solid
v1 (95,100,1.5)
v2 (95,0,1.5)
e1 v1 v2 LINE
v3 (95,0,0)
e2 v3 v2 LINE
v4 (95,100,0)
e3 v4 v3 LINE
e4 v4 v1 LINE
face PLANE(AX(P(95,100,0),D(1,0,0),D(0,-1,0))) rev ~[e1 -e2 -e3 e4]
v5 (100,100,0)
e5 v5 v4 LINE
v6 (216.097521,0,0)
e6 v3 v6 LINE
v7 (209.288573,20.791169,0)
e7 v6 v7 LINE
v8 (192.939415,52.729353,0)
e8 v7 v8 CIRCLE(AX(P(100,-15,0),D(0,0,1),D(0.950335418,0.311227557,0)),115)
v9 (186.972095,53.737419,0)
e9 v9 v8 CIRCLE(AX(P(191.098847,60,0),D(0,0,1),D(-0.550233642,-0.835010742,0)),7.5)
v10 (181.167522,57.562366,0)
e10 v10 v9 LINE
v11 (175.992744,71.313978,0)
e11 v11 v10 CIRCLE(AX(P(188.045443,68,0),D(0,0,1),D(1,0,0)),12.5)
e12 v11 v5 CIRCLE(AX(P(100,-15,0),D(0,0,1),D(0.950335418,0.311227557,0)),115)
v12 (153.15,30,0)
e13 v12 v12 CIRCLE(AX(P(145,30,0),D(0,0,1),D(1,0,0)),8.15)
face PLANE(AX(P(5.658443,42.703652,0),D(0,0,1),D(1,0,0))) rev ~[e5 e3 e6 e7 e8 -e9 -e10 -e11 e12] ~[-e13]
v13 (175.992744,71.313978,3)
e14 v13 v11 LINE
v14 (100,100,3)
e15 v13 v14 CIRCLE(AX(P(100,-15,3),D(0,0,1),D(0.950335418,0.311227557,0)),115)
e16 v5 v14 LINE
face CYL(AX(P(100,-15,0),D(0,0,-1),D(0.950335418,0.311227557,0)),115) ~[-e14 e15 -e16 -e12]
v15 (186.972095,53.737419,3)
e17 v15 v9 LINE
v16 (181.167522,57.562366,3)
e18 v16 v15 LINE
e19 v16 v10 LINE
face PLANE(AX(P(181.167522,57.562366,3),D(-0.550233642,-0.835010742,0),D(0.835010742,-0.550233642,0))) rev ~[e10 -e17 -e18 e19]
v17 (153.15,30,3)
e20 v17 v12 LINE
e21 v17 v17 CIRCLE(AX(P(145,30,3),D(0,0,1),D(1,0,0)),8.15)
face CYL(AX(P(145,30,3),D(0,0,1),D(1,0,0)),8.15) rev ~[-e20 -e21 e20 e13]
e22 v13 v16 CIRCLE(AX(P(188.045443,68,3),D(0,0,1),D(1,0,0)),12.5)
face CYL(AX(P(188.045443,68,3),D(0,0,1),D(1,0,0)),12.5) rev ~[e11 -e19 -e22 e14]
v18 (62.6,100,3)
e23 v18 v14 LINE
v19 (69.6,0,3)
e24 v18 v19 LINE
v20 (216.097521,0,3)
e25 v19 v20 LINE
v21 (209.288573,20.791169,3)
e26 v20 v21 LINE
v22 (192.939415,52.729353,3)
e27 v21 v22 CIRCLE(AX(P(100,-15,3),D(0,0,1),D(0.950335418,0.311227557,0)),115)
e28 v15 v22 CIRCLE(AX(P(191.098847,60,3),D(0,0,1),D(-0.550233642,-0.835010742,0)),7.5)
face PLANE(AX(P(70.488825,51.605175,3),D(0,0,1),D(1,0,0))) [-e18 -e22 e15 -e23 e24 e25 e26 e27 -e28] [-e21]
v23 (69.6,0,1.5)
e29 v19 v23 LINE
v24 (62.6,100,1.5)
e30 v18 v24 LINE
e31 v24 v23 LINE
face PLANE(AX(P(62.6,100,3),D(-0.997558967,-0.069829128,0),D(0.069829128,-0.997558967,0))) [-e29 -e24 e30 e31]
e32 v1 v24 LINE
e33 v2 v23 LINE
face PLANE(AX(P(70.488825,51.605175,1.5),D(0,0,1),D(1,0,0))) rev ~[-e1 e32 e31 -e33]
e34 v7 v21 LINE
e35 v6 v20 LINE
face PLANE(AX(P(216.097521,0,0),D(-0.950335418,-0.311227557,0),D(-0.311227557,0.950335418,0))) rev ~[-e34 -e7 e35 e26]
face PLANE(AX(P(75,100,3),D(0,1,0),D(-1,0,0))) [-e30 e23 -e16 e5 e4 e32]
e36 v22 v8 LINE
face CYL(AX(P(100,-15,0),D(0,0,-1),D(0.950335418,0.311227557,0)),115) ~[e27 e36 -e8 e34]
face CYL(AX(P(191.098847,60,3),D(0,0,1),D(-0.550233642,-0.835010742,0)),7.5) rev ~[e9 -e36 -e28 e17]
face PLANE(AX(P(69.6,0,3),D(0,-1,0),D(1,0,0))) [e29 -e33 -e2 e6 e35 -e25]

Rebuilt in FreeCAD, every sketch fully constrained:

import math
import FreeCAD as App
import Part
import Sketcher
from FreeCAD import Vector
Q = App.Units.Quantity


def edges_at(feature, points):
    """Names of the edges that pass closest to the given points."""
    edges = feature.Shape.Edges
    near = lambda p: min(range(len(edges)), key=lambda i: edges[i].distToShape(Part.Vertex(*p))[0])
    return sorted({f"Edge{near(p) + 1}" for p in points})


def add_polygon(sketch, points):
    """Adds a closed chain of lines whose ends are joined by coincident constraints."""
    first, n = sketch.GeometryCount, len(points)
    for a, b in zip(points, points[1:] + points[:1]):
        sketch.addGeometry(Part.LineSegment(App.Vector(*a, 0), App.Vector(*b, 0)), False)
    for i in range(n):
        sketch.addConstraint(Sketcher.Constraint("Coincident", first + i, 2, first + (i + 1) % n, 1))

doc = App.newDocument("Part")
body = doc.addObject("PartDesign::Body", "Body")

sketch1 = body.newObject("Sketcher::SketchObject", "Sketch")
sketch1.AttachmentSupport = (doc.getObject("XY_Plane"), [""])
sketch1.MapMode = "FlatFace"
sketch1.addGeometry([
    Part.LineSegment(Vector(-198, 21, 0), Vector(-202, 0, 0)),
    Part.LineSegment(Vector(-202, 0, 0), Vector(216, 0, 0)),
    Part.LineSegment(Vector(216, 0, 0), Vector(209, 21, 0)),
    Part.ArcOfCircle(Part.Circle(Vector(100, -15, 0), Vector(0, 0, 1), 115), math.radians(18), math.radians(90)),
    Part.LineSegment(Vector(100, 100, 0), Vector(-100, 100, 0)),
    Part.ArcOfCircle(Part.Circle(Vector(-100, 0, 0), Vector(0, 0, 1), 100), math.radians(90), math.radians(168)),
], False)
sketch1.addConstraint([
    Sketcher.Constraint("Coincident", 0, 2, 1, 1),
    Sketcher.Constraint("Coincident", 1, 2, 2, 1),
    Sketcher.Constraint("Tangent", 2, 2, 3, 1),
    Sketcher.Constraint("Tangent", 3, 2, 4, 1),
    Sketcher.Constraint("Tangent", 4, 2, 5, 1),
    Sketcher.Constraint("Tangent", 5, 2, 0, 1),
    Sketcher.Constraint("Horizontal", 1),
    Sketcher.Constraint("Horizontal", 4),
    Sketcher.Constraint("PointOnObject", 5, 3, -1),
    Sketcher.Constraint("PointOnObject", 0, 2, -1),
    Sketcher.Constraint("Horizontal", 2, 2, 5, 2),
    Sketcher.Constraint("Radius", 3, 115.0),
    Sketcher.Constraint("Radius", 5, 100.0),
    Sketcher.Constraint("DistanceX", 4, 2, 4, 1, 200.0),
    Sketcher.Constraint("Angle", 0, Q("-102 deg")),
    Sketcher.Constraint("DistanceX", -1, 1, 3, 3, 100.0),
])
pad1 = body.newObject("PartDesign::Pad", "Pad")
pad1.Profile = sketch1
pad1.Length = 3

sketch2 = body.newObject("Sketcher::SketchObject", "Sketch001")
sketch2.AttachmentSupport = (doc.getObject("XY_Plane"), [""])
sketch2.MapMode = "FlatFace"
sketch2.AttachmentOffset = App.Placement(Vector(0, 0, 3), App.Rotation())
sketch2.addGeometry([
    Part.ArcOfCircle(Part.Circle(Vector(0, 12.5, 0), Vector(0, 0, 1), 12.6), math.radians(28), math.radians(152)),
    Part.LineSegment(Vector(-11.1, 18.5, 0), Vector(-21.8, 0, 0)),
    Part.LineSegment(Vector(-21.8, 0, 0), Vector(-1.6, 0, 0)),
    Part.ArcOfCircle(Part.Circle(Vector(0, 12.5, 0), Vector(0, 0, 1), 12.6), math.radians(-97.22), math.radians(-82.78)),
    Part.LineSegment(Vector(1.6, 0, 0), Vector(21.8, 0, 0)),
    Part.LineSegment(Vector(21.8, 0, 0), Vector(11.1, 18.5, 0)),
], False)
sketch2.addConstraint([
    Sketcher.Constraint("Coincident", 0, 2, 1, 1),
    Sketcher.Constraint("Coincident", 1, 2, 2, 1),
    Sketcher.Constraint("Coincident", 2, 2, 3, 1),
    Sketcher.Constraint("Coincident", 3, 2, 4, 1),
    Sketcher.Constraint("Coincident", 4, 2, 5, 1),
    Sketcher.Constraint("Coincident", 5, 2, 0, 1),
    Sketcher.Constraint("Horizontal", 2),
    Sketcher.Constraint("Horizontal", 4),
    Sketcher.Constraint("Coincident", 3, 3, 0, 3),
    Sketcher.Constraint("Equal", 0, 3),
    Sketcher.Constraint("Symmetric", 2, 2, 3, 2, -1, 1),
    Sketcher.Constraint("Symmetric", 1, 2, 4, 2, -2),
    Sketcher.Constraint("Horizontal", 0, 2, 5, 2),
    Sketcher.Constraint("Radius", 0, 12.6),
    Sketcher.Constraint("Angle", 1, Q("-120 deg")),
    Sketcher.Constraint("DistanceY", -1, 1, 0, 3, 12.5),
    Sketcher.Constraint("Distance", 1, 21.318592),
])
pocket1 = body.newObject("PartDesign::Pocket", "Pocket")
pocket1.Profile = sketch2
pocket1.Length = 25
doc.recompute()

fillet = body.newObject("PartDesign::Fillet", "Fillet")
fillet.Base = (pocket1, edges_at(pocket1, [(-21.759, 0, 1.5), (21.759, 0, 1.5)]))
fillet.Radius = 5

sketch3 = body.newObject("Sketcher::SketchObject", "Sketch002")
sketch3.AttachmentSupport = (doc.getObject("XY_Plane"), [""])
sketch3.MapMode = "FlatFace"
sketch3.AttachmentOffset = App.Placement(Vector(0, 0, 3), App.Rotation())
add_polygon(sketch3, [(-145, 38.9), (-152.8, 34.5), (-152.8, 25.5), (-145, 21.1), (-137.2, 25.5), (-137.2, 34.5)])
sketch3.addGeometry(Part.Circle(Vector(-115, 30, 0), Vector(0, 0, 1), 11.2), False)
sketch3.addGeometry(Part.Circle(Vector(-115, 60, 0), Vector(0, 0, 1), 2.6), False)
sketch3.addGeometry(Part.Circle(Vector(-145, 60, 0), Vector(0, 0, 1), 2.6), False)
sketch3.addConstraint([
    Sketcher.Constraint("Vertical", 1),
    Sketcher.Constraint("Vertical", 4),
    Sketcher.Constraint("Equal", 7, 8),
    Sketcher.Constraint("Parallel", 0, 3),
    Sketcher.Constraint("Parallel", 2, 5),
    Sketcher.Constraint("Horizontal", 7, 3, 8, 3),
    Sketcher.Constraint("Horizontal", 1, 2, 3, 2),
    Sketcher.Constraint("Horizontal", 0, 2, 4, 2),
    Sketcher.Constraint("Vertical", 6, 3, 7, 3),
    Sketcher.Constraint("Vertical", 8, 3, 2, 2),
    Sketcher.Constraint("Vertical", 2, 2, 5, 2),
    Sketcher.Constraint("Diameter", 6, 22.3),
    Sketcher.Constraint("Diameter", 7, 5.3),
    Sketcher.Constraint("Angle", 0, Q("-150 deg")),
    Sketcher.Constraint("DistanceX", 6, 3, -1, 1, 115.0),
    Sketcher.Constraint("DistanceY", -1, 1, 6, 3, 30.0),
    Sketcher.Constraint("DistanceY", -1, 1, 7, 3, 60.0),
    Sketcher.Constraint("DistanceX", 8, 3, -1, 1, 145.0),
    Sketcher.Constraint("DistanceX", 1, 2, 3, 2, 15.5),
    Sketcher.Constraint("DistanceY", 1, 2, 1, 1, 8.948929),
    Sketcher.Constraint("DistanceY", -1, 1, 2, 2, 21.051071),
])
pocket2 = body.newObject("PartDesign::Pocket", "Pocket001")
pocket2.Profile = sketch3
pocket2.Length = 25

sketch4 = body.newObject("Sketcher::SketchObject", "Sketch003")
sketch4.AttachmentSupport = (doc.getObject("XY_Plane"), [""])
sketch4.MapMode = "FlatFace"
sketch4.AttachmentOffset = App.Placement(Vector(0, 0, 3), App.Rotation())
add_polygon(sketch4, [(-39, 85.5), (-39, 30), (39, 30), (39, 85.5)])
sketch4.addGeometry(Part.Circle(Vector(-42.6, 28.2, 0), Vector(0, 0, 1), 2), False)
sketch4.addGeometry(Part.Circle(Vector(-42.6, 87.2, 0), Vector(0, 0, 1), 2), False)
sketch4.addGeometry(Part.Circle(Vector(42.4, 87.2, 0), Vector(0, 0, 1), 2), False)
sketch4.addGeometry(Part.Circle(Vector(42.4, 28.2, 0), Vector(0, 0, 1), 2), False)
sketch4.addConstraint([
    Sketcher.Constraint("Vertical", 0),
    Sketcher.Constraint("Horizontal", 1),
    Sketcher.Constraint("Vertical", 2),
    Sketcher.Constraint("Horizontal", 3),
    Sketcher.Constraint("Equal", 4, 5),
    Sketcher.Constraint("Equal", 5, 6),
    Sketcher.Constraint("Equal", 6, 7),
    Sketcher.Constraint("Horizontal", 5, 3, 6, 3),
    Sketcher.Constraint("Horizontal", 4, 3, 7, 3),
    Sketcher.Constraint("Vertical", 4, 3, 5, 3),
    Sketcher.Constraint("Vertical", 6, 3, 7, 3),
    Sketcher.Constraint("Diameter", 4, 4.0),
    Sketcher.Constraint("DistanceX", 1, 1, 1, 2, 78.0),
    Sketcher.Constraint("DistanceY", 0, 2, 0, 1, 55.5),
    Sketcher.Constraint("DistanceX", 0, 2, -1, 1, 39.0),
    Sketcher.Constraint("DistanceY", -1, 1, 0, 2, 30.0),
    Sketcher.Constraint("DistanceY", 4, 3, 5, 3, 59.0),
    Sketcher.Constraint("DistanceX", 5, 3, 6, 3, 85.0),
    Sketcher.Constraint("DistanceY", -1, 1, 4, 3, 28.25),
    Sketcher.Constraint("DistanceX", 4, 3, -1, 1, 42.631317),
])
pocket3 = body.newObject("PartDesign::Pocket", "Pocket002")
pocket3.Profile = sketch4
pocket3.Length = 25

sketch5 = body.newObject("Sketcher::SketchObject", "Sketch004")
sketch5.AttachmentSupport = (doc.getObject("XY_Plane"), [""])
sketch5.MapMode = "FlatFace"
sketch5.AttachmentOffset = App.Placement(Vector(0, 0, 3), App.Rotation())
sketch5.addGeometry(Part.Circle(Vector(145, 30, 0), Vector(0, 0, 1), 8), False)
sketch5.addConstraint([
    Sketcher.Constraint("Diameter", 0, 16.3),
    Sketcher.Constraint("DistanceX", -1, 1, 0, 3, 145.0),
    Sketcher.Constraint("DistanceY", -1, 1, 0, 3, 30.0),
])
pocket4 = body.newObject("PartDesign::Pocket", "Pocket003")
pocket4.Profile = sketch5
pocket4.Length = 25

sketch6 = body.newObject("Sketcher::SketchObject", "Sketch005")
sketch6.AttachmentSupport = (doc.getObject("XY_Plane"), [""])
sketch6.MapMode = "FlatFace"
sketch6.AttachmentOffset = App.Placement(Vector(0, 0, 3), App.Rotation())
add_polygon(sketch6, [(-233, 117), (-233, 0), (75, 0), (75, 117)])
sketch6.addConstraint([
    Sketcher.Constraint("Vertical", 0),
    Sketcher.Constraint("Horizontal", 1),
    Sketcher.Constraint("Vertical", 2),
    Sketcher.Constraint("Horizontal", 3),
    Sketcher.Constraint("PointOnObject", 0, 2, -1),
    Sketcher.Constraint("DistanceX", -1, 1, 1, 2, 75.0),
    Sketcher.Constraint("DistanceX", 1, 1, 1, 2, 307.753576),
    Sketcher.Constraint("DistanceY", 0, 2, 0, 1, 117.255145),
])
pocket5 = body.newObject("PartDesign::Pocket", "Pocket004")
pocket5.Profile = sketch6
pocket5.Length = 25

sketch7 = body.newObject("Sketcher::SketchObject", "Sketch006")
sketch7.AttachmentSupport = (doc.getObject("XY_Plane"), [""])
sketch7.MapMode = "FlatFace"
add_polygon(sketch7, [(75, 0), (75, 100), (95, 100), (95, 0)])
sketch7.addConstraint([
    Sketcher.Constraint("Vertical", 0),
    Sketcher.Constraint("Horizontal", 1),
    Sketcher.Constraint("Vertical", 2),
    Sketcher.Constraint("Horizontal", 3),
    Sketcher.Constraint("PointOnObject", 2, 2, -1),
    Sketcher.Constraint("DistanceX", 1, 1, 1, 2, 20.0),
    Sketcher.Constraint("DistanceY", 0, 1, 0, 2, 100.0),
    Sketcher.Constraint("DistanceX", -1, 1, 0, 2, 75.0),
])
pocket6 = body.newObject("PartDesign::Pocket", "Pocket005")
pocket6.Profile = sketch7
pocket6.Length = 1.5
pocket6.Reversed = True

sketch8 = body.newObject("Sketcher::SketchObject", "Sketch007")
sketch8.AttachmentSupport = (doc.getObject("XY_Plane"), [""])
sketch8.MapMode = "FlatFace"
sketch8.AttachmentOffset = App.Placement(Vector(0, 0, 3), App.Rotation())
add_polygon(sketch8, [(75, 0), (75, 100), (63, 100), (70, 0)])
sketch8.addConstraint([
    Sketcher.Constraint("Vertical", 0),
    Sketcher.Constraint("Horizontal", 1),
    Sketcher.Constraint("Horizontal", 3),
    Sketcher.Constraint("PointOnObject", 2, 2, -1),
    Sketcher.Constraint("DistanceY", 0, 1, 0, 2, 100.0),
    Sketcher.Constraint("DistanceX", 1, 2, 1, 1, 12.4),
    Sketcher.Constraint("DistanceX", 3, 1, 3, 2, 5.4),
    Sketcher.Constraint("DistanceX", -1, 1, 0, 2, 75.0),
])
pad2 = body.newObject("PartDesign::Pad", "Pad001")
pad2.Profile = sketch8
pad2.Length = 1.5
pad2.Reversed = True

sketch9 = body.newObject("Sketcher::SketchObject", "Sketch008")
sketch9.AttachmentSupport = (doc.getObject("XY_Plane"), [""])
sketch9.MapMode = "FlatFace"
sketch9.AttachmentOffset = App.Placement(Vector(0, 0, 3), App.Rotation())
sketch9.addGeometry([
    Part.ArcOfCircle(Part.Circle(Vector(191.1, 60, 0), Vector(0, 0, 1), 7.5), math.radians(0), math.radians(8.9)),
    Part.ArcOfCircle(Part.Circle(Vector(188, 68, 0), Vector(0, 0, 1), 12.5), math.radians(-33), math.radians(0)),
    Part.ArcOfCircle(Part.Circle(Vector(188, 68, 0), Vector(0, 0, 1), 12.5), math.radians(0), math.radians(237)),
    Part.LineSegment(Vector(181.2, 57.6, 0), Vector(187, 53.7, 0)),
    Part.ArcOfCircle(Part.Circle(Vector(191.1, 60, 0), Vector(0, 0, 1), 7.5), math.radians(-123), math.radians(0)),
], False)
sketch9.addConstraint([
    Sketcher.Constraint("Coincident", 0, 2, 1, 1),
    Sketcher.Constraint("Tangent", 1, 2, 2, 1),
    Sketcher.Constraint("Tangent", 2, 2, 3, 1),
    Sketcher.Constraint("Tangent", 3, 2, 4, 1),
    Sketcher.Constraint("Tangent", 4, 2, 0, 1),
    Sketcher.Constraint("Equal", 1, 2),
    Sketcher.Constraint("Equal", 0, 4),
    Sketcher.Constraint("Horizontal", 2, 3, 1, 2),
    Sketcher.Constraint("Horizontal", 0, 3, 4, 2),
    Sketcher.Constraint("Radius", 0, 7.5),
    Sketcher.Constraint("Radius", 1, 12.5),
    Sketcher.Constraint("DistanceY", -1, 1, 0, 3, 60.0),
    Sketcher.Constraint("DistanceY", -1, 1, 1, 3, 68.0),
    Sketcher.Constraint("DistanceY", -1, 1, 0, 2, 61.160779),
    Sketcher.Constraint("DistanceX", -1, 1, 0, 3, 191.098847),
])
pocket7 = body.newObject("PartDesign::Pocket", "Pocket006")
pocket7.Profile = sketch9
pocket7.Length = 25

doc.recompute()
